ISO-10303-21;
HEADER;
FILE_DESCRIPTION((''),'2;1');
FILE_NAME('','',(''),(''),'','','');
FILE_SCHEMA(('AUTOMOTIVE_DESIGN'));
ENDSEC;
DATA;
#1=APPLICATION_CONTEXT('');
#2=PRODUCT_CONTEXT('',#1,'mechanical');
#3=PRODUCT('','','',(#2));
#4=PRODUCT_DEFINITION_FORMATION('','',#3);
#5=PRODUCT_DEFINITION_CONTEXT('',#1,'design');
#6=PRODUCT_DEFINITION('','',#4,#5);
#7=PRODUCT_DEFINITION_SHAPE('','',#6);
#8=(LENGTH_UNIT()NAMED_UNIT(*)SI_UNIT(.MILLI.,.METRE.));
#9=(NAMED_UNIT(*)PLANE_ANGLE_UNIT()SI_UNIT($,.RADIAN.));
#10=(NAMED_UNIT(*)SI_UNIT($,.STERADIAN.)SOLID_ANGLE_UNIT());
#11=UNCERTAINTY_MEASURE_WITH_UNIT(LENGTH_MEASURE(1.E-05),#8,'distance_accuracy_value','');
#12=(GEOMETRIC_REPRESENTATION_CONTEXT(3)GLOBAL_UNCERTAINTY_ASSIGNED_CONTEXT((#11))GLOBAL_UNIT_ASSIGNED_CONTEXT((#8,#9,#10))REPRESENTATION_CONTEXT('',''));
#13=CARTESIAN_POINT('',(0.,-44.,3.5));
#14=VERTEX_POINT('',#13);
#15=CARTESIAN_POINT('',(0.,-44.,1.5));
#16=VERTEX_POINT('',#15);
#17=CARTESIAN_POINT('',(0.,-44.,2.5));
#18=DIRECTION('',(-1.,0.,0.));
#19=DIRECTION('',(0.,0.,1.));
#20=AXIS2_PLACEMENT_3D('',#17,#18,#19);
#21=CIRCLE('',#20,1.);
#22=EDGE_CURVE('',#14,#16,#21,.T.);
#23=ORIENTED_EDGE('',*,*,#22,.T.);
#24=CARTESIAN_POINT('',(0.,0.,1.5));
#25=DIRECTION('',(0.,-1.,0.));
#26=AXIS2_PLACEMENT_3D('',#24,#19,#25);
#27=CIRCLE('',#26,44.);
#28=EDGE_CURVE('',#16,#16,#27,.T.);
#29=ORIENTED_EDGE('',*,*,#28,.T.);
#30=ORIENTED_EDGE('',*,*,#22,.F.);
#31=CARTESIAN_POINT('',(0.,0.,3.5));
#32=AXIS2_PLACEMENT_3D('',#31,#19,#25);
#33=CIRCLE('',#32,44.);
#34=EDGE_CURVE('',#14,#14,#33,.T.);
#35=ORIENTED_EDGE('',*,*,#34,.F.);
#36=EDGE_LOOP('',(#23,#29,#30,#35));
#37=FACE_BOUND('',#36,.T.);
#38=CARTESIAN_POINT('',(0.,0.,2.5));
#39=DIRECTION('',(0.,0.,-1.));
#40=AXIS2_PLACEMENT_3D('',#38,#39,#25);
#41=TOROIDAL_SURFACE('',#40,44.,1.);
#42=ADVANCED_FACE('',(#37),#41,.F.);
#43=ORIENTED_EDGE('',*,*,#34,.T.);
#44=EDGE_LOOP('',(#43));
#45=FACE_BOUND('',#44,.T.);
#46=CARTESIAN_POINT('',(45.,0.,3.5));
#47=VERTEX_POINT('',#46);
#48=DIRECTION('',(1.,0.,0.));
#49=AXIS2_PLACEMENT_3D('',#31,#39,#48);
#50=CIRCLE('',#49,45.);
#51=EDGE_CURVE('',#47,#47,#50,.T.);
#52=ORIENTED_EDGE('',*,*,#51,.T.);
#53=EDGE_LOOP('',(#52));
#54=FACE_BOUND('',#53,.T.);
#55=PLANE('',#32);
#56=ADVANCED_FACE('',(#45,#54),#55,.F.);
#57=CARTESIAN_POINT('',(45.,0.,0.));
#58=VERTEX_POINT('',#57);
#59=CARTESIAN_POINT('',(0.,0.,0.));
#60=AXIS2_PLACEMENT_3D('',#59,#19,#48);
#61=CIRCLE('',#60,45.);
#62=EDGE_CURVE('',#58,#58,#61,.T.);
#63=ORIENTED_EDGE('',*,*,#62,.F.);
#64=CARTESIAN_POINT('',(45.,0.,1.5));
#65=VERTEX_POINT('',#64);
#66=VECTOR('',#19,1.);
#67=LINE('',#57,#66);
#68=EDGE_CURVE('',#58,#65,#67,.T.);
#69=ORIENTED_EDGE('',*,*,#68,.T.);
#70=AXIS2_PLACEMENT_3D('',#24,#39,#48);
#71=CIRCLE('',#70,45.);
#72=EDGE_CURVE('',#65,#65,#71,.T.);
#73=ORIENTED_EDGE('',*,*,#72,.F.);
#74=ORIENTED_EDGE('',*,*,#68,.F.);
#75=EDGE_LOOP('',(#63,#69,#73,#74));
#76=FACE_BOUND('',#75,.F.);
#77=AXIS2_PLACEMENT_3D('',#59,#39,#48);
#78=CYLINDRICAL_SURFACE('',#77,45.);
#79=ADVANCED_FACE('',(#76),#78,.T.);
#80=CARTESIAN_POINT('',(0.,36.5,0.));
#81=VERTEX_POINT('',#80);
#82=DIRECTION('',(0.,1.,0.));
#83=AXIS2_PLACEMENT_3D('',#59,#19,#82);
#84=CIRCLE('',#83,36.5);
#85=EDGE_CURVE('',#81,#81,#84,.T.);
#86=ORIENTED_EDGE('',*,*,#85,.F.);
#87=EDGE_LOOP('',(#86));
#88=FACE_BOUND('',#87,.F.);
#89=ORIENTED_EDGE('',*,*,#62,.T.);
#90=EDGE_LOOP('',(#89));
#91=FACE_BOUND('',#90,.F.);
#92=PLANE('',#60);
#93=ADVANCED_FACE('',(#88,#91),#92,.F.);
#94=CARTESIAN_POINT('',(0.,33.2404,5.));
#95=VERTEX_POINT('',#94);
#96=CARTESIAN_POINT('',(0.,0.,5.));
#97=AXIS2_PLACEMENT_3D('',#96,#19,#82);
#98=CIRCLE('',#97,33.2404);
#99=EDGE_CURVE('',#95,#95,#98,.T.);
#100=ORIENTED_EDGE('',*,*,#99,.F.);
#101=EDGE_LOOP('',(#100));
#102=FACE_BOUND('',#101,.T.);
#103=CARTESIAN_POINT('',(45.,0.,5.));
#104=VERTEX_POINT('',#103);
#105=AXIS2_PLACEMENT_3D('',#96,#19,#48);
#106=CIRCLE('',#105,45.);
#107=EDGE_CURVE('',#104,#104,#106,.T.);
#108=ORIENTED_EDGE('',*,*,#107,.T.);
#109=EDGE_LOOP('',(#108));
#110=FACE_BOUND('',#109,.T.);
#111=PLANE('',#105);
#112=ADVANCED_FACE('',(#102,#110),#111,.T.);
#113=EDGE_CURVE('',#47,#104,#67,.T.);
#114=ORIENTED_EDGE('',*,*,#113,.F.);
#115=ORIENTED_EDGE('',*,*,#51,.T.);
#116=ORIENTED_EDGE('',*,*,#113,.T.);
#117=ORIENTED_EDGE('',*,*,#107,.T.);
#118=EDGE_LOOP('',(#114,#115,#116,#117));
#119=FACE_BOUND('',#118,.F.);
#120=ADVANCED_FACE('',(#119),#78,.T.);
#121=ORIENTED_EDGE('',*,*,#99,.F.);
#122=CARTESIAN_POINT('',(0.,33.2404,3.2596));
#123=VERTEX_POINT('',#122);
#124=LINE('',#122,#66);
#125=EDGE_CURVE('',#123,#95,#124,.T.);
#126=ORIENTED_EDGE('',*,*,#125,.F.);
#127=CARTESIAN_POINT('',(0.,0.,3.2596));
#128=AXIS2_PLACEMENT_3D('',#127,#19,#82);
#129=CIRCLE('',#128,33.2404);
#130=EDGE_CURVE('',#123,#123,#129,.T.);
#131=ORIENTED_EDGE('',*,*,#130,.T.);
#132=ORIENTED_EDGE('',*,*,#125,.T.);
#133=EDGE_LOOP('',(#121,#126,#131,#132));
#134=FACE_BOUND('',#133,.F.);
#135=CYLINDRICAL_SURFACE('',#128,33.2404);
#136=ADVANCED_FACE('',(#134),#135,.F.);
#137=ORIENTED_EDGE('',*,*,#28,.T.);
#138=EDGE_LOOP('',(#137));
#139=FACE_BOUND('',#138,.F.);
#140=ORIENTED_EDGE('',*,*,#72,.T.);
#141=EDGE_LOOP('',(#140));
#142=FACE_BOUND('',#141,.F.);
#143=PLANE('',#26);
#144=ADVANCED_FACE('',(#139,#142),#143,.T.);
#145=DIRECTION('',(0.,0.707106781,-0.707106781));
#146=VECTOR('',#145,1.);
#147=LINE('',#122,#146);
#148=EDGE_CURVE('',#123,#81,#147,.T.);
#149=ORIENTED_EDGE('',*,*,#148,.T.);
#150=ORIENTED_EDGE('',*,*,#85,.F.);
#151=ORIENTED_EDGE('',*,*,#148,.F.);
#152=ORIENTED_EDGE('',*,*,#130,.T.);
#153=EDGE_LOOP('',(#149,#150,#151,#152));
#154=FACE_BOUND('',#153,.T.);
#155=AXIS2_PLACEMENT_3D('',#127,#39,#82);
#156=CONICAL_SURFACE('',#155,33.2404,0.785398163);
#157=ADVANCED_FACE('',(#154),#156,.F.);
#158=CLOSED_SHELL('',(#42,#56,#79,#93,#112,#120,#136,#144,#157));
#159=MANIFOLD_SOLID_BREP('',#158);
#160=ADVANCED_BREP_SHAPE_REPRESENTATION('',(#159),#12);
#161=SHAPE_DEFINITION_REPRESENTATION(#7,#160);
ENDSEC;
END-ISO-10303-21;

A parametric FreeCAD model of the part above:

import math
import FreeCAD as App
import Part
import Sketcher
from FreeCAD import Vector
Q = App.Units.Quantity


def add_polygon(sketch, points):
    """Adds a closed chain of lines whose ends are joined by coincident constraints."""
    first, n = sketch.GeometryCount, len(points)
    for a, b in zip(points, points[1:] + points[:1]):
        sketch.addGeometry(Part.LineSegment(App.Vector(*a, 0), App.Vector(*b, 0)), False)
    for i in range(n):
        sketch.addConstraint(Sketcher.Constraint("Coincident", first + i, 2, first + (i + 1) % n, 1))

doc = App.newDocument("Part")
body = doc.addObject("PartDesign::Body", "Body")

# Sketch on XY plane
sketch1 = body.newObject("Sketcher::SketchObject", "Sketch")
sketch1.AttachmentSupport = (doc.getObject("XY_Plane"), [""])
sketch1.MapMode = "FlatFace"
sketch1.addGeometry(Part.Circle(Vector(0, 0, 0), Vector(0, 0, 1), 45), False)
sketch1.addGeometry(Part.Circle(Vector(0, 0, 0), Vector(0, 0, 1), 30), False)
sketch1.addConstraint(Sketcher.Constraint("Coincident", 0, 3, -1, 1))
sketch1.addConstraint(Sketcher.Constraint("Coincident", 1, 3, -1, 1))
sketch1.addConstraint(Sketcher.Constraint("Diameter", 0, 90.0))
sketch1.addConstraint(Sketcher.Constraint("Diameter", 1, 60.0))
pad1 = body.newObject("PartDesign::Pad", "Pad")
pad1.Profile = sketch1
pad1.Length = 5

# Sketch on YZ plane
sketch2 = body.newObject("Sketcher::SketchObject", "Sketch001")
sketch2.AttachmentSupport = (doc.getObject("YZ_Plane"), [""])
sketch2.MapMode = "FlatFace"
sketch2.addGeometry(Part.LineSegment(Vector(-45, 1.5, 0), Vector(-44, 1.5, 0)), False)
sketch2.addGeometry(Part.ArcOfCircle(Part.Circle(Vector(-44, 2.5, 0), Vector(0, 0, 1), 1), math.radians(-90), math.radians(90)), False)
sketch2.addGeometry(Part.LineSegment(Vector(-44, 3.5, 0), Vector(-45, 3.5, 0)), False)
sketch2.addGeometry(Part.LineSegment(Vector(-45, 3.5, 0), Vector(-45, 1.5, 0)), False)
sketch2.addConstraint(Sketcher.Constraint("Tangent", 0, 2, 1, 1))
sketch2.addConstraint(Sketcher.Constraint("Tangent", 1, 2, 2, 1))
sketch2.addConstraint(Sketcher.Constraint("Coincident", 2, 2, 3, 1))
sketch2.addConstraint(Sketcher.Constraint("Coincident", 3, 2, 0, 1))
sketch2.addConstraint(Sketcher.Constraint("Horizontal", 0))
sketch2.addConstraint(Sketcher.Constraint("Horizontal", 2))
sketch2.addConstraint(Sketcher.Constraint("Vertical", 3))
sketch2.addConstraint(Sketcher.Constraint("Radius", 1, 1.0))
sketch2.addConstraint(Sketcher.Constraint("DistanceX", 0, 1, 0, 2, 1.0))
sketch2.addConstraint(Sketcher.Constraint("DistanceX", 1, 3, -1, 1, 44.0))
sketch2.addConstraint(Sketcher.Constraint("DistanceY", -1, 1, 1, 3, 2.5))
groove = body.newObject("PartDesign::Groove", "Groove")
groove.Profile = sketch2
groove.ReferenceAxis = (sketch2, ["V_Axis"])
groove.Angle = 360

# Sketch on YZ plane
sketch3 = body.newObject("Sketcher::SketchObject", "Sketch002")
sketch3.AttachmentSupport = (doc.getObject("YZ_Plane"), [""])
sketch3.MapMode = "FlatFace"
add_polygon(sketch3, [(30, 0), (36.5, 0), (33.2, 3.3), (33.2, 5), (30, 5)])  # lines 0-4
sketch3.addConstraint(Sketcher.Constraint("Horizontal", 0))
sketch3.addConstraint(Sketcher.Constraint("Vertical", 2))
sketch3.addConstraint(Sketcher.Constraint("Horizontal", 3))
sketch3.addConstraint(Sketcher.Constraint("Vertical", 4))
sketch3.addConstraint(Sketcher.Constraint("PointOnObject", 0, 2, -1))
sketch3.addConstraint(Sketcher.Constraint("DistanceY", 4, 2, 4, 1, 5.0))
sketch3.addConstraint(Sketcher.Constraint("Angle", 1, Q("135 deg")))
sketch3.addConstraint(Sketcher.Constraint("DistanceX", 0, 1, 0, 2, 6.5))
sketch3.addConstraint(Sketcher.Constraint("DistanceX", -1, 1, 3, 2, 30.0))
sketch3.addConstraint(Sketcher.Constraint("DistanceX", 3, 2, 3, 1, 3.2404))
groove2 = body.newObject("PartDesign::Groove", "Groove001")
groove2.Profile = sketch3
groove2.ReferenceAxis = (sketch3, ["V_Axis"])
groove2.Angle = 360

doc.recompute()
